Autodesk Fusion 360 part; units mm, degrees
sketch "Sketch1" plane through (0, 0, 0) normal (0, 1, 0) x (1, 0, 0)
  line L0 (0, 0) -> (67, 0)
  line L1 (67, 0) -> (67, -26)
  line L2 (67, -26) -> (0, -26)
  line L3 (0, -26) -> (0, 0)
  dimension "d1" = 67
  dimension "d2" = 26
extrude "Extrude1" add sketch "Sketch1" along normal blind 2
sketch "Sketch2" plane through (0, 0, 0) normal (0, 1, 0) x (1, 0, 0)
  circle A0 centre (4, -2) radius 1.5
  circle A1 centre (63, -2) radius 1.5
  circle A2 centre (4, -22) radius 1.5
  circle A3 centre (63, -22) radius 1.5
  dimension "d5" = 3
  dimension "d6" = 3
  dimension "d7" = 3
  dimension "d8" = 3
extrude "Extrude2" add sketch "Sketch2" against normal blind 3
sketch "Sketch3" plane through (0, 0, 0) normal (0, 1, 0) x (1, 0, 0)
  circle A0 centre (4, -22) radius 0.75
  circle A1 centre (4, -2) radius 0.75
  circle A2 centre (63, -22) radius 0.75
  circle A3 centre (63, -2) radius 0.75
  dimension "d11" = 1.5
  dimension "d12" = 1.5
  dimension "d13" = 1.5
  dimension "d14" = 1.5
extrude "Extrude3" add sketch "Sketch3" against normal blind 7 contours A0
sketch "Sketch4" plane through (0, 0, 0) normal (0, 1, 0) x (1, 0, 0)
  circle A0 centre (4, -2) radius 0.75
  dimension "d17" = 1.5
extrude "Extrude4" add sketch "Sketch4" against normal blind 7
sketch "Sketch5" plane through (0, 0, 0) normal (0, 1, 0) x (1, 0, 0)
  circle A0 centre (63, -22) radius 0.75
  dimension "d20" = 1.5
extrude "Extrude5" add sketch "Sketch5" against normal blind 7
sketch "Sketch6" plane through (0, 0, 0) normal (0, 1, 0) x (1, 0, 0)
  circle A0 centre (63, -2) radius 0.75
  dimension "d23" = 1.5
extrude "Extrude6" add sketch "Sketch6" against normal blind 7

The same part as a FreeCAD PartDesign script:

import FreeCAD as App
import Part
import Sketcher
from FreeCAD import Vector
Q = App.Units.Quantity


def add_polygon(sketch, points):
    """Adds a closed chain of lines whose ends are joined by coincident constraints."""
    first, n = sketch.GeometryCount, len(points)
    for a, b in zip(points, points[1:] + points[:1]):
        sketch.addGeometry(Part.LineSegment(App.Vector(*a, 0), App.Vector(*b, 0)), False)
    for i in range(n):
        sketch.addConstraint(Sketcher.Constraint("Coincident", first + i, 2, first + (i + 1) % n, 1))

doc = App.newDocument("Part")
body = doc.addObject("PartDesign::Body", "Body")

sketch1 = doc.addObject("Sketcher::SketchObject", "Sketch")
body.addObject(sketch1)
sketch1.AttachmentSupport = (doc.XZ_Plane, [""])
sketch1.MapMode = "FlatFace"
add_polygon(sketch1, [(67, 0), (0, 0), (0, 26), (67, 26)])
sketch1.addConstraint(Sketcher.Constraint("Horizontal", 0))
sketch1.addConstraint(Sketcher.Constraint("Vertical", 1))
sketch1.addConstraint(Sketcher.Constraint("Horizontal", 2))
sketch1.addConstraint(Sketcher.Constraint("Vertical", 3))
sketch1.addConstraint(Sketcher.Constraint("Coincident", 0, 2, -1, 1))
sketch1.addConstraint(Sketcher.Constraint("DistanceX", 0, 2, 0, 1, Q("67 mm")))
sketch1.addConstraint(Sketcher.Constraint("DistanceY", 1, 1, 1, 2, Q("26 mm")))
pad1 = doc.addObject("PartDesign::Pad", "Pad")
body.addObject(pad1)
pad1.Profile = sketch1
pad1.Length = 2
pad1.Reversed = True

sketch2 = doc.addObject("Sketcher::SketchObject", "Sketch001")
body.addObject(sketch2)
sketch2.AttachmentSupport = (doc.XZ_Plane, [""])
sketch2.MapMode = "FlatFace"
sketch2.addGeometry(Part.Circle(Vector(4, 2, 0), Vector(0, 0, 1), 1.5), False)
sketch2.addGeometry(Part.Circle(Vector(63, 2, 0), Vector(0, 0, 1), 1.5), False)
sketch2.addGeometry(Part.Circle(Vector(4, 22, 0), Vector(0, 0, 1), 1.5), False)
sketch2.addGeometry(Part.Circle(Vector(63, 22, 0), Vector(0, 0, 1), 1.5), False)
sketch2.addConstraint(Sketcher.Constraint("Equal", 0, 1))
sketch2.addConstraint(Sketcher.Constraint("Equal", 1, 2))
sketch2.addConstraint(Sketcher.Constraint("Equal", 2, 3))
sketch2.addConstraint(Sketcher.Constraint("Horizontal", 0, 3, 1, 3))
sketch2.addConstraint(Sketcher.Constraint("Horizontal", 2, 3, 3, 3))
sketch2.addConstraint(Sketcher.Constraint("Vertical", 0, 3, 2, 3))
sketch2.addConstraint(Sketcher.Constraint("Vertical", 1, 3, 3, 3))
sketch2.addConstraint(Sketcher.Constraint("Diameter", 0, Q("3 mm")))
sketch2.addConstraint(Sketcher.Constraint("DistanceX", -1, 1, 0, 3, Q("4 mm")))
sketch2.addConstraint(Sketcher.Constraint("DistanceY", -1, 1, 0, 3, Q("2 mm")))
sketch2.addConstraint(Sketcher.Constraint("DistanceX", -1, 1, 1, 3, Q("63 mm")))
sketch2.addConstraint(Sketcher.Constraint("DistanceY", -1, 1, 2, 3, Q("22 mm")))
pad2 = doc.addObject("PartDesign::Pad", "Pad001")
body.addObject(pad2)
pad2.Profile = sketch2
pad2.Length = 3

sketch3 = doc.addObject("Sketcher::SketchObject", "Sketch002")
body.addObject(sketch3)
sketch3.AttachmentSupport = (doc.XZ_Plane, [""])
sketch3.MapMode = "FlatFace"
sketch3.addGeometry(Part.Circle(Vector(4, 22, 0), Vector(0, 0, 1), 0.8), False)
sketch3.addConstraint(Sketcher.Constraint("Diameter", 0, Q("1.5 mm")))
sketch3.addConstraint(Sketcher.Constraint("DistanceX", -1, 1, 0, 3, Q("4 mm")))
sketch3.addConstraint(Sketcher.Constraint("DistanceY", -1, 1, 0, 3, Q("22 mm")))
pad3 = doc.addObject("PartDesign::Pad", "Pad002")
body.addObject(pad3)
pad3.Profile = sketch3
pad3.Length = 7

sketch4 = doc.addObject("Sketcher::SketchObject", "Sketch003")
body.addObject(sketch4)
sketch4.AttachmentSupport = (doc.XZ_Plane, [""])
sketch4.MapMode = "FlatFace"
sketch4.addGeometry(Part.Circle(Vector(4, 2, 0), Vector(0, 0, 1), 0.8), False)
sketch4.addConstraint(Sketcher.Constraint("Diameter", 0, Q("1.5 mm")))
sketch4.addConstraint(Sketcher.Constraint("DistanceX", -1, 1, 0, 3, Q("4 mm")))
sketch4.addConstraint(Sketcher.Constraint("DistanceY", -1, 1, 0, 3, Q("2 mm")))
pad4 = doc.addObject("PartDesign::Pad", "Pad003")
body.addObject(pad4)
pad4.Profile = sketch4
pad4.Length = 7

sketch5 = doc.addObject("Sketcher::SketchObject", "Sketch004")
body.addObject(sketch5)
sketch5.AttachmentSupport = (doc.XZ_Plane, [""])
sketch5.MapMode = "FlatFace"
sketch5.addGeometry(Part.Circle(Vector(63, 22, 0), Vector(0, 0, 1), 0.8), False)
sketch5.addConstraint(Sketcher.Constraint("Diameter", 0, Q("1.5 mm")))
sketch5.addConstraint(Sketcher.Constraint("DistanceX", -1, 1, 0, 3, Q("63 mm")))
sketch5.addConstraint(Sketcher.Constraint("DistanceY", -1, 1, 0, 3, Q("22 mm")))
pad5 = doc.addObject("PartDesign::Pad", "Pad004")
body.addObject(pad5)
pad5.Profile = sketch5
pad5.Length = 7

sketch6 = doc.addObject("Sketcher::SketchObject", "Sketch005")
body.addObject(sketch6)
sketch6.AttachmentSupport = (doc.XZ_Plane, [""])
sketch6.MapMode = "FlatFace"
sketch6.addGeometry(Part.Circle(Vector(63, 2, 0), Vector(0, 0, 1), 0.8), False)
sketch6.addConstraint(Sketcher.Constraint("Diameter", 0, Q("1.5 mm")))
sketch6.addConstraint(Sketcher.Constraint("DistanceX", -1, 1, 0, 3, Q("63 mm")))
sketch6.addConstraint(Sketcher.Constraint("DistanceY", -1, 1, 0, 3, Q("2 mm")))
pad6 = doc.addObject("PartDesign::Pad", "Pad005")
body.addObject(pad6)
pad6.Profile = sketch6
pad6.Length = 7

doc.recompute()
